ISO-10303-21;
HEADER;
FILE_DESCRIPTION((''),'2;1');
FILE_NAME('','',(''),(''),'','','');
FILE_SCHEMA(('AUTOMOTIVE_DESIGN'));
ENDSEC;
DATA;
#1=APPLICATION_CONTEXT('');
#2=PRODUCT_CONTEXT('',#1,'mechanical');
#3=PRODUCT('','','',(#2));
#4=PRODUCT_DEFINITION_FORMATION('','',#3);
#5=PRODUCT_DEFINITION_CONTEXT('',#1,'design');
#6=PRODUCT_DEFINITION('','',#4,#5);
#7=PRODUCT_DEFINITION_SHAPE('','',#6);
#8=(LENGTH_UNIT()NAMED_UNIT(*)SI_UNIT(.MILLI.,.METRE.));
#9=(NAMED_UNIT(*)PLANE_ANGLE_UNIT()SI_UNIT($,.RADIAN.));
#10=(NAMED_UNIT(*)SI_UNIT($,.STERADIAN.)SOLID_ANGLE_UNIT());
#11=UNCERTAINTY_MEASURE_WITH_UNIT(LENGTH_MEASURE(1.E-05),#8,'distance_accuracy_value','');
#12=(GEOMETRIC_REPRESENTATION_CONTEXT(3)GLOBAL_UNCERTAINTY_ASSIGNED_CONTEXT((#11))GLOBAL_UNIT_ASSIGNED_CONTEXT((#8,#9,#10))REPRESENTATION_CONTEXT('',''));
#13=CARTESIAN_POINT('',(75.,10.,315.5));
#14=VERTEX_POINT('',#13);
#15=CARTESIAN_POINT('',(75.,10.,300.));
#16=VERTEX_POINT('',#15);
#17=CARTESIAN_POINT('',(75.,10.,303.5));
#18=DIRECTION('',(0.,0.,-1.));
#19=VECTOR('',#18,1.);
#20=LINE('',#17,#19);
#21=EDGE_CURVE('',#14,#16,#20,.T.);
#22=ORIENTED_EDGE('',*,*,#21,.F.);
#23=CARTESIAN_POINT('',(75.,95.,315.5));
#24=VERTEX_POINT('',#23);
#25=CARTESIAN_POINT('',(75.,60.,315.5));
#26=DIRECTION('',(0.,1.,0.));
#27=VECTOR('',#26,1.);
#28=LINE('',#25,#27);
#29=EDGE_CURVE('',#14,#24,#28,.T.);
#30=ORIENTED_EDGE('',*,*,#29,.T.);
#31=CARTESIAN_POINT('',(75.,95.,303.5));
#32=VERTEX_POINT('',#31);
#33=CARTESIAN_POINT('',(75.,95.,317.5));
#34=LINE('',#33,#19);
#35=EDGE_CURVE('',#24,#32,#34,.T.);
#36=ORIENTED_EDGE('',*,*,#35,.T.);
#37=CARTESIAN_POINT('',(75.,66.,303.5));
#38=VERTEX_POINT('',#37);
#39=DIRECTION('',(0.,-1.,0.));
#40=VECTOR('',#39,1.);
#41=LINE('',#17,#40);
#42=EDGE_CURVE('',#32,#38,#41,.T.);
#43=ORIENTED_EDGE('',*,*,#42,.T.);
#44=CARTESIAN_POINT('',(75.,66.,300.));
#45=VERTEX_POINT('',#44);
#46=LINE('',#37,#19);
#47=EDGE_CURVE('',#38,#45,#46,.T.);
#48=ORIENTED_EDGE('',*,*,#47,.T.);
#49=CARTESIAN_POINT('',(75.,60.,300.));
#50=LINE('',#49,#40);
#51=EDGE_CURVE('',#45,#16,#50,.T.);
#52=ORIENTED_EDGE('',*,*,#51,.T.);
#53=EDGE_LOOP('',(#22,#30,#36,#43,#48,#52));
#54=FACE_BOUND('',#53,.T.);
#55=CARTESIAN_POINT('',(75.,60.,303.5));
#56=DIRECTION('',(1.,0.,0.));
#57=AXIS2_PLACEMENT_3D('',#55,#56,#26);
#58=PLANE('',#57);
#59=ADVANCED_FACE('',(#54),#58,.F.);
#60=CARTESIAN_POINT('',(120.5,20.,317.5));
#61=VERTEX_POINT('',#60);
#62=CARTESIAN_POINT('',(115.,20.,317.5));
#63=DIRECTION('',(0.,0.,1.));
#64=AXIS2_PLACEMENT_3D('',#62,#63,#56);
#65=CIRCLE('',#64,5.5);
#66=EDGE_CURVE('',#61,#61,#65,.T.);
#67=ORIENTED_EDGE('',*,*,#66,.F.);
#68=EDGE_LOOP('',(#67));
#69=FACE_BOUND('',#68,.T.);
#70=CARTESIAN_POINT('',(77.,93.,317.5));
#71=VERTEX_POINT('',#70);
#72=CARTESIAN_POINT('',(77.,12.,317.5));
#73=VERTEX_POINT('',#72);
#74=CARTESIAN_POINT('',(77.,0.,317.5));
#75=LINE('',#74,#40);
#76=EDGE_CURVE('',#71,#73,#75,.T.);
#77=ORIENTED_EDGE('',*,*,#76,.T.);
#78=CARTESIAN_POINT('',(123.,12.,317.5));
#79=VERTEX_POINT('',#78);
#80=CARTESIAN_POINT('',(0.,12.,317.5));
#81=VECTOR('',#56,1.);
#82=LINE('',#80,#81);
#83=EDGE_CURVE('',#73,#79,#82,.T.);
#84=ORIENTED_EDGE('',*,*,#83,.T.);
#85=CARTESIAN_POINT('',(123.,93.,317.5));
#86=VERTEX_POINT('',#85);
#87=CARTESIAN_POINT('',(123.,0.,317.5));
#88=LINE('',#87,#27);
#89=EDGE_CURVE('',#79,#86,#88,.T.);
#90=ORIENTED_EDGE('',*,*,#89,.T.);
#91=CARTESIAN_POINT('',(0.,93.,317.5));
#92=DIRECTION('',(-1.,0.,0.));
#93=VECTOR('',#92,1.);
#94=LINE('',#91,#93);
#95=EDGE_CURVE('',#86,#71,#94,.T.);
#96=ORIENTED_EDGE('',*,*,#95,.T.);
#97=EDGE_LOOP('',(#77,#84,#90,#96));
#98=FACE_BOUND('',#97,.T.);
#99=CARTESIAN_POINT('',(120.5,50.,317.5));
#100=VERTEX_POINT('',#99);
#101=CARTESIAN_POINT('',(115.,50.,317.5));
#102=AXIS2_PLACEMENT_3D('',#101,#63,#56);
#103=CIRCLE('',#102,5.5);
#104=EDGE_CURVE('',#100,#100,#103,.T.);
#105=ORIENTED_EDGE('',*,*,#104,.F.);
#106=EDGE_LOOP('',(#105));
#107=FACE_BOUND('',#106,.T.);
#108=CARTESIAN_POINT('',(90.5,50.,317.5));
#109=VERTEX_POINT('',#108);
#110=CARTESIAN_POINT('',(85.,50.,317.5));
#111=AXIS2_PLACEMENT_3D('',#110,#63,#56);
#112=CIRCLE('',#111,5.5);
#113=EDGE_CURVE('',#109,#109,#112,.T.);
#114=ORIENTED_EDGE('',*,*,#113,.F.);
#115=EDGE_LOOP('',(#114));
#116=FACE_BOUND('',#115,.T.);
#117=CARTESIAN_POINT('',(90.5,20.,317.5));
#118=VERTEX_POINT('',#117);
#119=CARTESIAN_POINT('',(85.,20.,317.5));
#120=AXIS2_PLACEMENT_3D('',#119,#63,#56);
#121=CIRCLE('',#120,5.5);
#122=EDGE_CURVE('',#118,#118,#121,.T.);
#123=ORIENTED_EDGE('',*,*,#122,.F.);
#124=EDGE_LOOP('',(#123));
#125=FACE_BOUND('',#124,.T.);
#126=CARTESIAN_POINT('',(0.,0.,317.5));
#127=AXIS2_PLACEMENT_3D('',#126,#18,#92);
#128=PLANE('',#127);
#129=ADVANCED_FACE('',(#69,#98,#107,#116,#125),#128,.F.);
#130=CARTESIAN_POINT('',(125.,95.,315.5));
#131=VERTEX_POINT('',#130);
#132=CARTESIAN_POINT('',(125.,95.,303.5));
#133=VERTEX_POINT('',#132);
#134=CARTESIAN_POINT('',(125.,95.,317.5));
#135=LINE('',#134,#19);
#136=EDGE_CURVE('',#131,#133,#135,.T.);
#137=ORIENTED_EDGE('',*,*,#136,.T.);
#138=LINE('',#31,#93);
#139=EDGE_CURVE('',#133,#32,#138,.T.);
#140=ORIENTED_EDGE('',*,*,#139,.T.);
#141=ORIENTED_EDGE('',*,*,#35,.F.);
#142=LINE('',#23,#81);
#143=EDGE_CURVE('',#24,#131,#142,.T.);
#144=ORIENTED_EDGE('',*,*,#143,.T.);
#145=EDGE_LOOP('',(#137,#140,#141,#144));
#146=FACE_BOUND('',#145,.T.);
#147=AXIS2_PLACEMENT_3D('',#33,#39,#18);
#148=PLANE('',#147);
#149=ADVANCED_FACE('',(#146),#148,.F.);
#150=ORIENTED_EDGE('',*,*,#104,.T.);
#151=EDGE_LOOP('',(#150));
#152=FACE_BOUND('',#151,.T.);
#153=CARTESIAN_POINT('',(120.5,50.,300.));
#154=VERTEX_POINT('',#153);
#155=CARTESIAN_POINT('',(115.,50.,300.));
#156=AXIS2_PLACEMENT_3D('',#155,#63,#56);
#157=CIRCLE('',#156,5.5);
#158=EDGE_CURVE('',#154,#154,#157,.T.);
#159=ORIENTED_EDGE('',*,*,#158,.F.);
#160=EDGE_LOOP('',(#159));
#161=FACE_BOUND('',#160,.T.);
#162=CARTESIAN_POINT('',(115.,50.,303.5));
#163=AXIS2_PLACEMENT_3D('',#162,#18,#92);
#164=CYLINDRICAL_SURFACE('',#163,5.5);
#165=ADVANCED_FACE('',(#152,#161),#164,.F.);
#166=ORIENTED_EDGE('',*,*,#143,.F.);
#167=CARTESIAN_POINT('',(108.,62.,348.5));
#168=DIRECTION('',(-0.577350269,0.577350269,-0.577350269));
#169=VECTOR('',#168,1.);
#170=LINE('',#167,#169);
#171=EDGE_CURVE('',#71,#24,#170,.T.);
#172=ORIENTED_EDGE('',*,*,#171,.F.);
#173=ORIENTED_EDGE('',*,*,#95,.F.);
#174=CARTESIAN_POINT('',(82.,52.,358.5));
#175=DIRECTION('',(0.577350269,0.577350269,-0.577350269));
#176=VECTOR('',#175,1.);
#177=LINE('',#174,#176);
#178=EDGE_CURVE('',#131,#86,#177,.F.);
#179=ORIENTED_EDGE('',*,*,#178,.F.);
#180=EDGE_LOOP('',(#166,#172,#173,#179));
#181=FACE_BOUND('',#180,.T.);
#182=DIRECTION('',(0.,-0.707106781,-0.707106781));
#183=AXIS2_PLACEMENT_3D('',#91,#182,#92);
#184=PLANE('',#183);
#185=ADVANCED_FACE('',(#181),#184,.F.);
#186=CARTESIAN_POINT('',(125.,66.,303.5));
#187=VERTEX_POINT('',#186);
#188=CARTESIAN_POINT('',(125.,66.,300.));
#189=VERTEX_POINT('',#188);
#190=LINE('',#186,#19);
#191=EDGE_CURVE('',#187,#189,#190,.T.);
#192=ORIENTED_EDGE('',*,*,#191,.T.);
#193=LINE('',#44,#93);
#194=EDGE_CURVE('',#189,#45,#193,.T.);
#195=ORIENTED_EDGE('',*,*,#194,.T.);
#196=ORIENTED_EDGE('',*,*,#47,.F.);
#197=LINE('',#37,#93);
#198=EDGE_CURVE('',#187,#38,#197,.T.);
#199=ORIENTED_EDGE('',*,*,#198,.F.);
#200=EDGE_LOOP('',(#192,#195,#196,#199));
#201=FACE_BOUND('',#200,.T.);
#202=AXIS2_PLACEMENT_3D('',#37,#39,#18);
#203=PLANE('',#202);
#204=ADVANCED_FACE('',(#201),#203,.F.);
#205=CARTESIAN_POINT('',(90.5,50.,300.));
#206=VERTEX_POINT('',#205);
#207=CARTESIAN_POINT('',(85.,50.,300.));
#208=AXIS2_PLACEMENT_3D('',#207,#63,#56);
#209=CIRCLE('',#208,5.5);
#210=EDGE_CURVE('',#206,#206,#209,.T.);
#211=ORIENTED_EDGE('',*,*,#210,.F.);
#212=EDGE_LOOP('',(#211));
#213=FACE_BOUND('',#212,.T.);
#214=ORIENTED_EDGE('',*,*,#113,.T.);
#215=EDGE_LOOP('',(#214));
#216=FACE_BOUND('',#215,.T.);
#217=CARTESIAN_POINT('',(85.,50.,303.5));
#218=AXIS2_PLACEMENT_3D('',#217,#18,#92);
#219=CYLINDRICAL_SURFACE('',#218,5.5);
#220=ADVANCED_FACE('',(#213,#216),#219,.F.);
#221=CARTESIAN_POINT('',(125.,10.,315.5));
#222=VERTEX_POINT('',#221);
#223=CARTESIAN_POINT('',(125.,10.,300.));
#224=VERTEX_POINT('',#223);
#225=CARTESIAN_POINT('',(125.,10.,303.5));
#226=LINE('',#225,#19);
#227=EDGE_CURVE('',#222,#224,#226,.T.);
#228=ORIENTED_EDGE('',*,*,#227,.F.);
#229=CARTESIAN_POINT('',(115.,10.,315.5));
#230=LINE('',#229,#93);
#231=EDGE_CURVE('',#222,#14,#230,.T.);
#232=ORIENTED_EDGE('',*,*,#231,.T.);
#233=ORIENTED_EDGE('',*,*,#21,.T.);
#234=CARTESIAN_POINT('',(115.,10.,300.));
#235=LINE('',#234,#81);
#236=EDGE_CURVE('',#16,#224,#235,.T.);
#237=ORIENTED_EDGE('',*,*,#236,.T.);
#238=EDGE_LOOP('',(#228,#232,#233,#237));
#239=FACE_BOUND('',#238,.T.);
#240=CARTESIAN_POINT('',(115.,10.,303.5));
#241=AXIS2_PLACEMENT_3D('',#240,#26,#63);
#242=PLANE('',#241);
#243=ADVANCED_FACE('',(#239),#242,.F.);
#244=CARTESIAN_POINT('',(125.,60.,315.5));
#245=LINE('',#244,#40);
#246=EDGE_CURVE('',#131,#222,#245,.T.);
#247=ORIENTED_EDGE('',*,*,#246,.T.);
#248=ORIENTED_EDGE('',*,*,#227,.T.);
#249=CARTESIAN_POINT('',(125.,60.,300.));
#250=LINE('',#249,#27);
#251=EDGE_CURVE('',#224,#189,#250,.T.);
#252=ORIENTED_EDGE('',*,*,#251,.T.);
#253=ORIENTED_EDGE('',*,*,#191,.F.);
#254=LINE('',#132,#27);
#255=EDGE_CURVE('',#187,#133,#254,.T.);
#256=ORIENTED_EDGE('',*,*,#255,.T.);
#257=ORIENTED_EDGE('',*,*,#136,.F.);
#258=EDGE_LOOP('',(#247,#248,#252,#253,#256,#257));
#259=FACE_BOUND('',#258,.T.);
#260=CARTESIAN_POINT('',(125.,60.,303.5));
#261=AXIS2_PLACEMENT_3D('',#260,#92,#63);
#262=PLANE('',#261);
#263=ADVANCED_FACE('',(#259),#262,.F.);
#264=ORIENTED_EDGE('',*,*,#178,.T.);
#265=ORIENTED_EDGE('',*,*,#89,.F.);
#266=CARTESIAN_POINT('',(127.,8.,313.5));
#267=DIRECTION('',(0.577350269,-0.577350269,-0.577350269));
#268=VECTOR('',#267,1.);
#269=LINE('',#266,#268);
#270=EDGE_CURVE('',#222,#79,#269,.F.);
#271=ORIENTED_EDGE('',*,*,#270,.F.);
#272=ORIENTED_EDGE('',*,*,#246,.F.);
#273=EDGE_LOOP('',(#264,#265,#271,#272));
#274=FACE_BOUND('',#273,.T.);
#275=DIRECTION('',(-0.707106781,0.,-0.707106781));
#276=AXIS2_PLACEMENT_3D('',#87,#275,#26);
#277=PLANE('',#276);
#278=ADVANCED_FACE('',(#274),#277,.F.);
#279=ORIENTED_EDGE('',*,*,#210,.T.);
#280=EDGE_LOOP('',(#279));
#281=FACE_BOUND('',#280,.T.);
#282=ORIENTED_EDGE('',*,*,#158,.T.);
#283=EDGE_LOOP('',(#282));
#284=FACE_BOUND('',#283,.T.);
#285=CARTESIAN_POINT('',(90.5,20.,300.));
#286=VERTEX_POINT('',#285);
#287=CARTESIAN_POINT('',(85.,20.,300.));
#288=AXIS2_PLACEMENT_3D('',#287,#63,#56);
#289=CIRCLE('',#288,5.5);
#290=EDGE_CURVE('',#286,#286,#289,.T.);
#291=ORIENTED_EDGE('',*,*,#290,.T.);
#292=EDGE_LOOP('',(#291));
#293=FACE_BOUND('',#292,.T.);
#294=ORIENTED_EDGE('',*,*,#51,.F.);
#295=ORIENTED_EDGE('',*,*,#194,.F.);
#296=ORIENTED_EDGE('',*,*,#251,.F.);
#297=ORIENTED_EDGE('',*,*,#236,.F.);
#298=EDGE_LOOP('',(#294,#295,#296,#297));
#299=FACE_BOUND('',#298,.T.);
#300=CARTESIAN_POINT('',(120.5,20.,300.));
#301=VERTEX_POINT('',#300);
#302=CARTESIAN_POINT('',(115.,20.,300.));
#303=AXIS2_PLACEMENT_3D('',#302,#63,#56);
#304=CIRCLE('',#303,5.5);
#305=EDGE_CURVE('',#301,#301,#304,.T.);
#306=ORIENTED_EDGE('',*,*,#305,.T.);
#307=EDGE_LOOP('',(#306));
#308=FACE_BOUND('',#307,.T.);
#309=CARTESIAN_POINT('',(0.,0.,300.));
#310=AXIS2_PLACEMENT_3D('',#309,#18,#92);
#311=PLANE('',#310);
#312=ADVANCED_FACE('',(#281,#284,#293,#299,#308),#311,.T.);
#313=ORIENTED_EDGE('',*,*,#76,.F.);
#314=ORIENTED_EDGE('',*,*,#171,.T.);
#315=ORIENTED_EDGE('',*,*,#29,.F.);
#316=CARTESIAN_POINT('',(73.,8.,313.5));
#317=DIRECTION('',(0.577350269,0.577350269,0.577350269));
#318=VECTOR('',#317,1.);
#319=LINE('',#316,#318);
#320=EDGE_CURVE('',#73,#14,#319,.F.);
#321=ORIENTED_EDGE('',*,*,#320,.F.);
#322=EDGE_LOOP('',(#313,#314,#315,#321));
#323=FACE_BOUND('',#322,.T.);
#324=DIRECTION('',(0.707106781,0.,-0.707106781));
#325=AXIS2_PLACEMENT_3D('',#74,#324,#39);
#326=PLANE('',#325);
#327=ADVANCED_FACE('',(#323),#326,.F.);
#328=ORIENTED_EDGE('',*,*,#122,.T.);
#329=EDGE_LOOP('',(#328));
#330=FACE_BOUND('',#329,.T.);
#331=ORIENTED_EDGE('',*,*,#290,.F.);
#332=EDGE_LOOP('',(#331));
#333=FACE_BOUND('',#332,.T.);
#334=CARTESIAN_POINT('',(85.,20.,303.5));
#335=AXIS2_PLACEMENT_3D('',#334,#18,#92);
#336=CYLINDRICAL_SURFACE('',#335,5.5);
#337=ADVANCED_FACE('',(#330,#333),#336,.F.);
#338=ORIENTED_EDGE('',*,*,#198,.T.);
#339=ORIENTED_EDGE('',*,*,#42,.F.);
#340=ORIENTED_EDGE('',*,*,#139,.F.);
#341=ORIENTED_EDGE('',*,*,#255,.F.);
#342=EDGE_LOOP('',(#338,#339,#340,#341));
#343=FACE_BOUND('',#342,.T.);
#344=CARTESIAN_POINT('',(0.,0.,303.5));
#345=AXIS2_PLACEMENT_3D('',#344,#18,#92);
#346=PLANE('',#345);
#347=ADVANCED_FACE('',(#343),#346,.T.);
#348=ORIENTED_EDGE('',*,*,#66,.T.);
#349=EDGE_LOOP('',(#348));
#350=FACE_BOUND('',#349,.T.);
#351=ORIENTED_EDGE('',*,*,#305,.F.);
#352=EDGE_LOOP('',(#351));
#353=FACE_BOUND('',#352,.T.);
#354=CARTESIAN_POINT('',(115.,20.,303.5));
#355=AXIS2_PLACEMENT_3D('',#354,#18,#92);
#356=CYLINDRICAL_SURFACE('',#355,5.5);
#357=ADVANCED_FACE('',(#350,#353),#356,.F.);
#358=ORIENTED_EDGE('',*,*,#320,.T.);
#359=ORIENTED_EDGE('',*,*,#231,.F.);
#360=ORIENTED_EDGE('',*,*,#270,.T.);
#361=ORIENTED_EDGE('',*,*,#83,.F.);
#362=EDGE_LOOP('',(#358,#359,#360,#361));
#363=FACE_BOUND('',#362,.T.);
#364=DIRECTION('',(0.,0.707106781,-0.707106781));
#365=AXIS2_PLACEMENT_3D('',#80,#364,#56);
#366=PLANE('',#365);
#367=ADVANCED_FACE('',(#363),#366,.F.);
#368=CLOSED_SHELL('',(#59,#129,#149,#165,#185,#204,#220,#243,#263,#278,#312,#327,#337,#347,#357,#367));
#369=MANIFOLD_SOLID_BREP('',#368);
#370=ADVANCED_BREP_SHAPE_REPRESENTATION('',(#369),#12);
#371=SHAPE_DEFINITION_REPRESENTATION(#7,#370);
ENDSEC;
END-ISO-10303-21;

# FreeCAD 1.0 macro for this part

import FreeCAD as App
import Part
import Sketcher
from FreeCAD import Vector
Q = App.Units.Quantity


def edges_at(feature, points):
    """Names of the edges that pass closest to the given points."""
    edges = feature.Shape.Edges
    near = lambda p: min(range(len(edges)), key=lambda i: edges[i].distToShape(Part.Vertex(*p))[0])
    return sorted({f"Edge{near(p) + 1}" for p in points})

doc = App.newDocument("Part")
params = doc.addObject("Spreadsheet::Sheet", "Params")
for row, (alias, value) in enumerate([
    ("sketch1_diameter", "11 mm"),
    ("sketch1_width", "50 mm"),
    ("sketch1_height", "56 mm"),
    ("pad1_length", "3.5 mm"),
    ("sketch2_diameter", "11 mm"),
    ("sketch2_width", "50 mm"),
    ("sketch2_height", "85 mm"),
    ("pad2_length", "14 mm"),
    ("chamfer_size", "2 mm"),
], start=1):
    params.set(f"A{row}", alias)
    params.set(f"B{row}", "=" + value)
    params.setAlias(f"B{row}", alias)

body = doc.addObject("PartDesign::Body", "Body")

# Sketch on XY plane
sketch1 = body.newObject("Sketcher::SketchObject", "Sketch")
sketch1.AttachmentSupport = (doc.getObject("XY_Plane"), [""])
sketch1.MapMode = "FlatFace"
sketch1.AttachmentOffset = App.Placement(Vector(0, 0, 300), App.Rotation())
sketch1.addGeometry(Part.LineSegment(Vector(125, 66, 0), Vector(75, 66, 0)), False)
sketch1.addGeometry(Part.LineSegment(Vector(75, 66, 0), Vector(75, 10, 0)), False)
sketch1.addGeometry(Part.LineSegment(Vector(75, 10, 0), Vector(125, 10, 0)), False)
sketch1.addGeometry(Part.LineSegment(Vector(125, 10, 0), Vector(125, 66, 0)), False)
sketch1.addGeometry(Part.Circle(Vector(115, 20, 0), Vector(0, 0, 1), 6), False)
sketch1.addGeometry(Part.Circle(Vector(85, 20, 0), Vector(0, 0, 1), 6), False)
sketch1.addGeometry(Part.Circle(Vector(115, 50, 0), Vector(0, 0, 1), 6), False)
sketch1.addGeometry(Part.Circle(Vector(85, 50, 0), Vector(0, 0, 1), 6), False)
sketch1.addConstraint(Sketcher.Constraint("Coincident", 0, 2, 1, 1))
sketch1.addConstraint(Sketcher.Constraint("Coincident", 1, 2, 2, 1))
sketch1.addConstraint(Sketcher.Constraint("Coincident", 2, 2, 3, 1))
sketch1.addConstraint(Sketcher.Constraint("Coincident", 3, 2, 0, 1))
sketch1.addConstraint(Sketcher.Constraint("Horizontal", 0))
sketch1.addConstraint(Sketcher.Constraint("Vertical", 1))
sketch1.addConstraint(Sketcher.Constraint("Horizontal", 2))
sketch1.addConstraint(Sketcher.Constraint("Vertical", 3))
sketch1.addConstraint(Sketcher.Constraint("Equal", 4, 5))
sketch1.addConstraint(Sketcher.Constraint("Equal", 5, 6))
sketch1.addConstraint(Sketcher.Constraint("Equal", 6, 7))
sketch1.addConstraint(Sketcher.Constraint("Horizontal", 4, 3, 5, 3))
sketch1.addConstraint(Sketcher.Constraint("Horizontal", 6, 3, 7, 3))
sketch1.addConstraint(Sketcher.Constraint("Vertical", 4, 3, 6, 3))
sketch1.addConstraint(Sketcher.Constraint("Vertical", 5, 3, 7, 3))
sketch1.addConstraint(Sketcher.Constraint("Diameter", 4, Q("11 mm")))
sketch1.addConstraint(Sketcher.Constraint("DistanceX", 0, 2, 0, 1, Q("50 mm")))
sketch1.addConstraint(Sketcher.Constraint("DistanceY", 1, 2, 1, 1, Q("56 mm")))
sketch1.addConstraint(Sketcher.Constraint("DistanceX", -1, 1, 4, 3, Q("115 mm")))
sketch1.addConstraint(Sketcher.Constraint("DistanceY", -1, 1, 4, 3, Q("20 mm")))
sketch1.addConstraint(Sketcher.Constraint("DistanceX", -1, 1, 5, 3, Q("85 mm")))
sketch1.addConstraint(Sketcher.Constraint("DistanceY", -1, 1, 6, 3, Q("50 mm")))
sketch1.addConstraint(Sketcher.Constraint("DistanceX", -1, 1, 0, 2, Q("75 mm")))
sketch1.addConstraint(Sketcher.Constraint("DistanceY", -1, 1, 0, 2, Q("66 mm")))
sketch1.setExpression("Constraints[15]", "Params.sketch1_diameter")
sketch1.setExpression("Constraints[16]", "Params.sketch1_width")
sketch1.setExpression("Constraints[17]", "Params.sketch1_height")
pad1 = body.newObject("PartDesign::Pad", "Pad")
pad1.Profile = sketch1
pad1.setExpression("Length", "Params.pad1_length")

# Sketch on XY plane
sketch2 = body.newObject("Sketcher::SketchObject", "Sketch001")
sketch2.AttachmentSupport = (doc.getObject("XY_Plane"), [""])
sketch2.MapMode = "FlatFace"
sketch2.AttachmentOffset = App.Placement(Vector(0, 0, 303.5), App.Rotation())
sketch2.addGeometry(Part.LineSegment(Vector(75, 95, 0), Vector(75, 10, 0)), False)
sketch2.addGeometry(Part.LineSegment(Vector(75, 10, 0), Vector(125, 10, 0)), False)
sketch2.addGeometry(Part.LineSegment(Vector(125, 10, 0), Vector(125, 95, 0)), False)
sketch2.addGeometry(Part.LineSegment(Vector(125, 95, 0), Vector(75, 95, 0)), False)
sketch2.addGeometry(Part.Circle(Vector(115, 20, 0), Vector(0, 0, 1), 6), False)
sketch2.addGeometry(Part.Circle(Vector(85, 20, 0), Vector(0, 0, 1), 6), False)
sketch2.addGeometry(Part.Circle(Vector(115, 50, 0), Vector(0, 0, 1), 6), False)
sketch2.addGeometry(Part.Circle(Vector(85, 50, 0), Vector(0, 0, 1), 6), False)
sketch2.addConstraint(Sketcher.Constraint("Coincident", 0, 2, 1, 1))
sketch2.addConstraint(Sketcher.Constraint("Coincident", 1, 2, 2, 1))
sketch2.addConstraint(Sketcher.Constraint("Coincident", 2, 2, 3, 1))
sketch2.addConstraint(Sketcher.Constraint("Coincident", 3, 2, 0, 1))
sketch2.addConstraint(Sketcher.Constraint("Vertical", 0))
sketch2.addConstraint(Sketcher.Constraint("Horizontal", 1))
sketch2.addConstraint(Sketcher.Constraint("Vertical", 2))
sketch2.addConstraint(Sketcher.Constraint("Horizontal", 3))
sketch2.addConstraint(Sketcher.Constraint("Equal", 4, 5))
sketch2.addConstraint(Sketcher.Constraint("Equal", 5, 6))
sketch2.addConstraint(Sketcher.Constraint("Equal", 6, 7))
sketch2.addConstraint(Sketcher.Constraint("Horizontal", 4, 3, 5, 3))
sketch2.addConstraint(Sketcher.Constraint("Horizontal", 6, 3, 7, 3))
sketch2.addConstraint(Sketcher.Constraint("Vertical", 4, 3, 6, 3))
sketch2.addConstraint(Sketcher.Constraint("Vertical", 5, 3, 7, 3))
sketch2.addConstraint(Sketcher.Constraint("Diameter", 4, Q("11 mm")))
sketch2.addConstraint(Sketcher.Constraint("DistanceX", 1, 1, 1, 2, Q("50 mm")))
sketch2.addConstraint(Sketcher.Constraint("DistanceY", 0, 2, 0, 1, Q("85 mm")))
sketch2.addConstraint(Sketcher.Constraint("DistanceX", -1, 1, 4, 3, Q("115 mm")))
sketch2.addConstraint(Sketcher.Constraint("DistanceY", -1, 1, 4, 3, Q("20 mm")))
sketch2.addConstraint(Sketcher.Constraint("DistanceX", -1, 1, 5, 3, Q("85 mm")))
sketch2.addConstraint(Sketcher.Constraint("DistanceY", -1, 1, 6, 3, Q("50 mm")))
sketch2.addConstraint(Sketcher.Constraint("DistanceX", -1, 1, 0, 2, Q("75 mm")))
sketch2.addConstraint(Sketcher.Constraint("DistanceY", -1, 1, 0, 2, Q("10 mm")))
sketch2.setExpression("Constraints[15]", "Params.sketch2_diameter")
sketch2.setExpression("Constraints[16]", "Params.sketch2_width")
sketch2.setExpression("Constraints[17]", "Params.sketch2_height")
pad2 = body.newObject("PartDesign::Pad", "Pad001")
pad2.Profile = sketch2
pad2.setExpression("Length", "Params.pad2_length")
doc.recompute()

chamfer = body.newObject("PartDesign::Chamfer", "Chamfer")
chamfer.Base = (pad2, edges_at(pad2, [
    (100, 10, 317.5),
    (125, 52.5, 317.5),
    (100, 95, 317.5),
    (75, 52.5, 317.5),
]))
chamfer.setExpression("Size", "Params.chamfer_size")

doc.recompute()
